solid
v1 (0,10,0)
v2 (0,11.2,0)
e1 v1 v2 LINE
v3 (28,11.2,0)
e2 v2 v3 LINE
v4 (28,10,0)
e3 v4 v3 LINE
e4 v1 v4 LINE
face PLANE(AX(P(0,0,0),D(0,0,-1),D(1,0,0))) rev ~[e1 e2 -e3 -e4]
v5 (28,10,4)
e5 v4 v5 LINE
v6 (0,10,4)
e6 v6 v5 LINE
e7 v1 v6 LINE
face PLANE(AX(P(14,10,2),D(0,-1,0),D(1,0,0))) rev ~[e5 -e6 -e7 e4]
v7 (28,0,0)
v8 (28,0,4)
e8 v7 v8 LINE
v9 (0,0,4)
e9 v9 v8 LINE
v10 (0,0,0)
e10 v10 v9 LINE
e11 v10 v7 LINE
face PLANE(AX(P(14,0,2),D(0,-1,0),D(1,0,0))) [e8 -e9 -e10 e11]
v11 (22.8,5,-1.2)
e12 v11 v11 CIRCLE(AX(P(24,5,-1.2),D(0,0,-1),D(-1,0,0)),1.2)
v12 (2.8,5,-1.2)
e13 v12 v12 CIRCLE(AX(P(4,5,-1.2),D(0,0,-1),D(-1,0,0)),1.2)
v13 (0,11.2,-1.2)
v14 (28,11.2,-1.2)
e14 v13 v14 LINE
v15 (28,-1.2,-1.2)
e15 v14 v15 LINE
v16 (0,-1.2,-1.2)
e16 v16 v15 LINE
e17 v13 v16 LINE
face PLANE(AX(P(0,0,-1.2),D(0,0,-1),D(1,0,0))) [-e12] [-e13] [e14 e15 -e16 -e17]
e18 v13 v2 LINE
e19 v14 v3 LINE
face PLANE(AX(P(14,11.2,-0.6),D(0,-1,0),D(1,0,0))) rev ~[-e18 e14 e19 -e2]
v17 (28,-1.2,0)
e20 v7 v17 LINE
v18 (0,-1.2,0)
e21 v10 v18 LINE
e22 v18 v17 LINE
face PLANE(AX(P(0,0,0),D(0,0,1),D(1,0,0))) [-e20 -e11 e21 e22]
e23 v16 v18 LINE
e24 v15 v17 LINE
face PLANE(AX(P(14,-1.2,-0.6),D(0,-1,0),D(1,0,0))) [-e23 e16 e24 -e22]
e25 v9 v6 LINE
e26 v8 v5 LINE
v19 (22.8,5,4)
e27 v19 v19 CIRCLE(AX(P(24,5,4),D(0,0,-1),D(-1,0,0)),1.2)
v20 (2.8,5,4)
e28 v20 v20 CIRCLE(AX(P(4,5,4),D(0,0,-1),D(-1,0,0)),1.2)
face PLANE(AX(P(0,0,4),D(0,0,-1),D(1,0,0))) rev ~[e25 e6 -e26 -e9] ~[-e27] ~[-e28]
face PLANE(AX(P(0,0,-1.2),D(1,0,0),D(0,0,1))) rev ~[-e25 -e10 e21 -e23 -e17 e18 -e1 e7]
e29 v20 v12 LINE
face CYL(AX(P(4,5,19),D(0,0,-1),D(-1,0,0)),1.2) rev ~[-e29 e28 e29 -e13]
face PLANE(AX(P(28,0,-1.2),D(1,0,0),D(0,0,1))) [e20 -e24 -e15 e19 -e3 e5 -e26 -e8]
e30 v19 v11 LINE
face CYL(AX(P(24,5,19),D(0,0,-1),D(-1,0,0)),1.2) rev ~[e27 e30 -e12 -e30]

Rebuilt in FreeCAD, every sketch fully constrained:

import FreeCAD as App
import Part
import Sketcher

V = App.Vector

doc = App.newDocument("Part")
body = doc.addObject("PartDesign::Body", "Body")

sketch1 = body.newObject("Sketcher::SketchObject", "Sketch")
sketch1.AttachmentSupport = (doc.getObject("XZ_Plane"), [""])
sketch1.MapMode = "FlatFace"
sketch1.addGeometry([
    Part.LineSegment(V(0, 4, 0), V(0, 0, 0)),
    Part.LineSegment(V(0, 0, 0), V(28, 0, 0)),
    Part.LineSegment(V(28, 0, 0), V(28, 4, 0)),
    Part.LineSegment(V(28, 4, 0), V(0, 4, 0)),
], False)
sketch1.addConstraint([
    Sketcher.Constraint("Coincident", 0, 2, 1, 1),
    Sketcher.Constraint("Coincident", 1, 2, 2, 1),
    Sketcher.Constraint("Coincident", 2, 2, 3, 1),
    Sketcher.Constraint("Coincident", 3, 2, 0, 1),
    Sketcher.Constraint("Vertical", 0),
    Sketcher.Constraint("Horizontal", 1),
    Sketcher.Constraint("Vertical", 2),
    Sketcher.Constraint("Horizontal", 3),
    Sketcher.Constraint("Coincident", 0, 2, -1, 1),
    Sketcher.Constraint("DistanceX", 1, 1, 1, 2, 28.0),
    Sketcher.Constraint("DistanceY", 0, 2, 0, 1, 4.0),
])
pad1 = body.newObject("PartDesign::Pad", "Pad")
pad1.Profile = sketch1
pad1.Length = 10
pad1.Reversed = True

sketch2 = body.newObject("Sketcher::SketchObject", "Sketch001")
sketch2.AttachmentSupport = (doc.getObject("XZ_Plane"), [""])
sketch2.MapMode = "FlatFace"
sketch2.addGeometry([
    Part.LineSegment(V(0, 0, 0), V(0, -1.2, 0)),
    Part.LineSegment(V(0, -1.2, 0), V(28, -1.2, 0)),
    Part.LineSegment(V(28, -1.2, 0), V(28, 0, 0)),
    Part.LineSegment(V(28, 0, 0), V(0, 0, 0)),
], False)
sketch2.addConstraint([
    Sketcher.Constraint("Coincident", 0, 2, 1, 1),
    Sketcher.Constraint("Coincident", 1, 2, 2, 1),
    Sketcher.Constraint("Coincident", 2, 2, 3, 1),
    Sketcher.Constraint("Coincident", 3, 2, 0, 1),
    Sketcher.Constraint("Vertical", 0),
    Sketcher.Constraint("Horizontal", 1),
    Sketcher.Constraint("Vertical", 2),
    Sketcher.Constraint("Horizontal", 3),
    Sketcher.Constraint("Coincident", 3, 2, -1, 1),
    Sketcher.Constraint("DistanceX", 1, 1, 1, 2, 28.0),
    Sketcher.Constraint("DistanceY", 0, 2, 0, 1, 1.2),
])
pad2 = body.newObject("PartDesign::Pad", "Pad001")
pad2.Profile = sketch2
pad2.Type = "TwoLengths"
pad2.Length = 1.2
pad2.Length2 = 11.2

sketch3 = body.newObject("Sketcher::SketchObject", "Sketch002")
sketch3.AttachmentSupport = (doc.getObject("XY_Plane"), [""])
sketch3.MapMode = "FlatFace"
sketch3.AttachmentOffset = App.Placement(V(0, 0, 4), App.Rotation())
sketch3.addGeometry([
    Part.Circle(V(4, 5, 0), V(0, 0, 1), 1.2),
    Part.Circle(V(24, 5, 0), V(0, 0, 1), 1.2),
], False)
sketch3.addConstraint([
    Sketcher.Constraint("Equal", 0, 1),
    Sketcher.Constraint("Horizontal", 0, 3, 1, 3),
    Sketcher.Constraint("Diameter", 0, 2.4),
    Sketcher.Constraint("DistanceX", -1, 1, 0, 3, 4.0),
    Sketcher.Constraint("DistanceY", -1, 1, 0, 3, 5.0),
    Sketcher.Constraint("DistanceX", -1, 1, 1, 3, 24.0),
])
doc.recompute()
hole = body.newObject("PartDesign::Hole", "Hole")
hole.Profile = sketch3
hole.ThreadType = "None"
hole.Diameter = 2.4
hole.DepthType = "Dimension"
hole.Depth = 15
hole.DrillPoint = "Flat"

doc.recompute()
